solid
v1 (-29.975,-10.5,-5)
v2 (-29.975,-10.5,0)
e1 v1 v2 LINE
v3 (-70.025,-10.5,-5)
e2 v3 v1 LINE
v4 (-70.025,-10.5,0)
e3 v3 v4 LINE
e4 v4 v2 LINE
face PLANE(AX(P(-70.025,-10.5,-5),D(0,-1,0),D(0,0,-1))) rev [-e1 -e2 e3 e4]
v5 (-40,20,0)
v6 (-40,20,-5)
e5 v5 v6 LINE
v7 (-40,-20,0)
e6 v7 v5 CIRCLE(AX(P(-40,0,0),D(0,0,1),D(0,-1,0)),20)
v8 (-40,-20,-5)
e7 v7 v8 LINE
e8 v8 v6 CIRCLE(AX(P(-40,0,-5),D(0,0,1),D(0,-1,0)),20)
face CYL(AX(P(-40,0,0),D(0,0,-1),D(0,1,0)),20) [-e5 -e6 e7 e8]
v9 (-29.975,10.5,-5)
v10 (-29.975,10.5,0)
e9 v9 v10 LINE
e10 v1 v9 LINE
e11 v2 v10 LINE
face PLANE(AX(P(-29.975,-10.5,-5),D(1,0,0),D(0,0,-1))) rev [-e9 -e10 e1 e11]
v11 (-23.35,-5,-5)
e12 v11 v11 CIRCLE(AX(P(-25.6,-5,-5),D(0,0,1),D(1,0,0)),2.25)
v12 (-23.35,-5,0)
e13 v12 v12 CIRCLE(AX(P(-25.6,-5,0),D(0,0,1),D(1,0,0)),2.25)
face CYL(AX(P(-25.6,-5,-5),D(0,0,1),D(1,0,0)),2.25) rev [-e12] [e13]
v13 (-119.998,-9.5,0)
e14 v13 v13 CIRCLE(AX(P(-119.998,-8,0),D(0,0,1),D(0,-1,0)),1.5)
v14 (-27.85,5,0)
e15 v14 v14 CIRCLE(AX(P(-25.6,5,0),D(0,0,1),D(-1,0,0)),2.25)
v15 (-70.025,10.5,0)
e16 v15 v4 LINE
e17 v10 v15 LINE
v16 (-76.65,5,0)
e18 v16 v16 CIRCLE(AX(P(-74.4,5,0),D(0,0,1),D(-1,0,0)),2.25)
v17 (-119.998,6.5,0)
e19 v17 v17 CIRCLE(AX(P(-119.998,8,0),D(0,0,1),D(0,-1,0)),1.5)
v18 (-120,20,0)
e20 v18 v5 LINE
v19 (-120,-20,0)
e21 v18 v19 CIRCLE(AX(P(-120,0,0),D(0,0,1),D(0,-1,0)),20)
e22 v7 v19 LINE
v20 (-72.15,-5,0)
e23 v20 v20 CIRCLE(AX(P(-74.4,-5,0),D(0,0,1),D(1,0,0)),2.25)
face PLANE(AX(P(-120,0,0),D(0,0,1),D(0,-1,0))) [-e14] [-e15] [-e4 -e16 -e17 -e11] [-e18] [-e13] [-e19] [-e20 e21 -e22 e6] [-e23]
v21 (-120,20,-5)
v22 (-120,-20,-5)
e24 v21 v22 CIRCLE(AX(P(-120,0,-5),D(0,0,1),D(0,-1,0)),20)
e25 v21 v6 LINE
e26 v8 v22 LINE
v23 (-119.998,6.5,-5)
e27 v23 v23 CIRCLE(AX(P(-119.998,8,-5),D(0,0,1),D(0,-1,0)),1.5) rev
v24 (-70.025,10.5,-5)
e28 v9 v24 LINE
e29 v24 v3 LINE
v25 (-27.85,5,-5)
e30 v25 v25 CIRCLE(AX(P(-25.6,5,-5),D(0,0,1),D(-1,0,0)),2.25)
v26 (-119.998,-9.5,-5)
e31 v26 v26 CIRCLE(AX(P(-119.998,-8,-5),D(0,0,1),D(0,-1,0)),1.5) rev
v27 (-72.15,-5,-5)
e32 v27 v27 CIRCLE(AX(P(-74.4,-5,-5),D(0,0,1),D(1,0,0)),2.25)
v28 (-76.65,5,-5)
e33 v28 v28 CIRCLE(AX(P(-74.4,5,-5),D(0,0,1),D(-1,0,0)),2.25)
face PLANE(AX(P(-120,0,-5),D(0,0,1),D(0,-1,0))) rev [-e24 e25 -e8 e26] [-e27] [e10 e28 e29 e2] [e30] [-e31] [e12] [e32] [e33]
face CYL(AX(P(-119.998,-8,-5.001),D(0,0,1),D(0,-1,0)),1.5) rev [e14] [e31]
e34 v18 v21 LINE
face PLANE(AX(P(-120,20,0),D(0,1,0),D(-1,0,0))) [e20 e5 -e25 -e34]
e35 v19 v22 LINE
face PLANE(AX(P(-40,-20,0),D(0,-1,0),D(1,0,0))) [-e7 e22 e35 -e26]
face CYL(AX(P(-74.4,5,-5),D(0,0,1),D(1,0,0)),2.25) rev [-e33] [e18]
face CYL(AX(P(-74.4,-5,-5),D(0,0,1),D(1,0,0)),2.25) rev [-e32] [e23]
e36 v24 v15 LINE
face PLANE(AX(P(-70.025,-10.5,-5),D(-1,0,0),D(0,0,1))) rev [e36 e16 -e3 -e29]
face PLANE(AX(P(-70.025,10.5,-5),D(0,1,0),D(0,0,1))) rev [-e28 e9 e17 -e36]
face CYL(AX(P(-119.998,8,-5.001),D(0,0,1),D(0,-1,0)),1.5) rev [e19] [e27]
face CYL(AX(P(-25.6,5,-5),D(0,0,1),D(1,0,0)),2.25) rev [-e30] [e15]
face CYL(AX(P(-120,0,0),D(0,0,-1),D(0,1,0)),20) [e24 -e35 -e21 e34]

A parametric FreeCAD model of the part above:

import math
import FreeCAD as App
import Part
import Sketcher

doc = App.newDocument("Part")
body = doc.addObject("PartDesign::Body", "Body")

# Sketch on XZ plane
sketch1 = doc.addObject("Sketcher::SketchObject", "Sketch")
body.addObject(sketch1)
sketch1.AttachmentSupport = (doc.XZ_Plane, [""])
sketch1.MapMode = "FlatFace"
sketch1.addGeometry(Part.LineSegment(App.Vector(0, 20, 0), App.Vector(80, 20, 0)), False)
sketch1.addGeometry(Part.ArcOfCircle(Part.Circle(App.Vector(80, 0, 0), App.Vector(0, 0, 1), 20), math.radians(-90), math.radians(90)), False)
sketch1.addGeometry(Part.LineSegment(App.Vector(80, -20, 0), App.Vector(0, -20, 0)), False)
sketch1.addGeometry(Part.ArcOfCircle(Part.Circle(App.Vector(0, 0, 0), App.Vector(0, 0, 1), 20), math.radians(90), math.radians(270)), False)
sketch1.addConstraint(Sketcher.Constraint("Tangent", 0, 2, 1, 2))
sketch1.addConstraint(Sketcher.Constraint("Tangent", 1, 1, 2, 1))
sketch1.addConstraint(Sketcher.Constraint("Tangent", 2, 2, 3, 2))
sketch1.addConstraint(Sketcher.Constraint("Tangent", 3, 1, 0, 1))
sketch1.addConstraint(Sketcher.Constraint("Horizontal", 0))
sketch1.addConstraint(Sketcher.Constraint("Horizontal", 2))
sketch1.addConstraint(Sketcher.Constraint("Coincident", 3, 3, -1, 1))
sketch1.addConstraint(Sketcher.Constraint("Radius", 1, 20.0))
sketch1.addConstraint(Sketcher.Constraint("DistanceX", 0, 1, 0, 2, 80.0))
pad1 = doc.addObject("PartDesign::Pad", "Pad")
body.addObject(pad1)
pad1.Profile = sketch1
pad1.Length = 5
pad1.Reversed = True

# Sketch on XZ plane
sketch2 = doc.addObject("Sketcher::SketchObject", "Sketch001")
body.addObject(sketch2)
sketch2.AttachmentSupport = (doc.XZ_Plane, [""])
sketch2.MapMode = "FlatFace"
sketch2.AttachmentOffset = App.Placement(App.Vector(0, 0, -5), App.Rotation())
sketch2.addGeometry(Part.Circle(App.Vector(0, -8, 0), App.Vector(0, 0, 1), 1.5), False)
sketch2.addConstraint(Sketcher.Constraint("Diameter", 0, 3.0))
sketch2.addConstraint(Sketcher.Constraint("DistanceY", 0, 3, -1, 1, 8.0))
sketch2.addConstraint(Sketcher.Constraint("DistanceX", -1, 1, 0, 3, 0.002))
pocket1 = doc.addObject("PartDesign::Pocket", "Pocket")
body.addObject(pocket1)
pocket1.Profile = sketch2
pocket1.Type = "UpToFirst"
pocket1.Reversed = True

# Sketch on XZ plane
sketch3 = doc.addObject("Sketcher::SketchObject", "Sketch002")
body.addObject(sketch3)
sketch3.AttachmentSupport = (doc.XZ_Plane, [""])
sketch3.MapMode = "FlatFace"
sketch3.AttachmentOffset = App.Placement(App.Vector(0, 0, -5), App.Rotation())
sketch3.addGeometry(Part.Circle(App.Vector(0, 8, 0), App.Vector(0, 0, 1), 1.5), False)
sketch3.addConstraint(Sketcher.Constraint("Diameter", 0, 3.0))
sketch3.addConstraint(Sketcher.Constraint("DistanceY", -1, 1, 0, 3, 8.0))
sketch3.addConstraint(Sketcher.Constraint("DistanceX", -1, 1, 0, 3, 0.002))
pocket2 = doc.addObject("PartDesign::Pocket", "Pocket001")
body.addObject(pocket2)
pocket2.Profile = sketch3
pocket2.Type = "UpToFirst"
pocket2.Reversed = True
body2 = doc.addObject("PartDesign::Body", "Body001")
doc.recompute()

body.Placement = App.Placement(App.Vector(0, 0, 0), App.Rotation(App.Vector(1, 0, 0), 90))
boolean = doc.addObject("PartDesign::Boolean", "Boolean")
body2.addObject(boolean)
boolean.Type = "Fuse"
boolean.addObjects([body])

# Sketch on XY plane
sketch4 = doc.addObject("Sketcher::SketchObject", "Sketch003")
body2.addObject(sketch4)
sketch4.AttachmentSupport = (doc.getObject("XY_Plane001"), [""])
sketch4.MapMode = "FlatFace"
sketch4.AttachmentOffset = App.Placement(App.Vector(0, 0, 5), App.Rotation())
sketch4.addGeometry(Part.Circle(App.Vector(94.4, -5, 0), App.Vector(0, 0, 1), 2.2), False)
sketch4.addGeometry(Part.Circle(App.Vector(94.4, 5, 0), App.Vector(0, 0, 1), 2.2), False)
sketch4.addGeometry(Part.Circle(App.Vector(45.6, 5, 0), App.Vector(0, 0, 1), 2.2), False)
sketch4.addGeometry(Part.Circle(App.Vector(45.6, -5, 0), App.Vector(0, 0, 1), 2.2), False)
sketch4.addGeometry(Part.LineSegment(App.Vector(50, 10.5, 0), App.Vector(50, -10.5, 0)), False)
sketch4.addGeometry(Part.LineSegment(App.Vector(50, -10.5, 0), App.Vector(90, -10.5, 0)), False)
sketch4.addGeometry(Part.LineSegment(App.Vector(90, -10.5, 0), App.Vector(90, 10.5, 0)), False)
sketch4.addGeometry(Part.LineSegment(App.Vector(90, 10.5, 0), App.Vector(50, 10.5, 0)), False)
sketch4.addConstraint(Sketcher.Constraint("Coincident", 4, 2, 5, 1))
sketch4.addConstraint(Sketcher.Constraint("Coincident", 5, 2, 6, 1))
sketch4.addConstraint(Sketcher.Constraint("Coincident", 6, 2, 7, 1))
sketch4.addConstraint(Sketcher.Constraint("Coincident", 7, 2, 4, 1))
sketch4.addConstraint(Sketcher.Constraint("Vertical", 4))
sketch4.addConstraint(Sketcher.Constraint("Horizontal", 5))
sketch4.addConstraint(Sketcher.Constraint("Vertical", 6))
sketch4.addConstraint(Sketcher.Constraint("Horizontal", 7))
sketch4.addConstraint(Sketcher.Constraint("Equal", 0, 1))
sketch4.addConstraint(Sketcher.Constraint("Equal", 1, 2))
sketch4.addConstraint(Sketcher.Constraint("Equal", 2, 3))
sketch4.addConstraint(Sketcher.Constraint("Symmetric", 0, 3, 1, 3, -1))
sketch4.addConstraint(Sketcher.Constraint("Symmetric", 2, 3, 3, 3, -1))
sketch4.addConstraint(Sketcher.Constraint("Horizontal", 1, 3, 2, 3))
sketch4.addConstraint(Sketcher.Constraint("Diameter", 0, 4.5))
sketch4.addConstraint(Sketcher.Constraint("DistanceY", 4, 2, 4, 1, 21.0))
sketch4.addConstraint(Sketcher.Constraint("DistanceY", 0, 3, -1, 1, 5.0))
sketch4.addConstraint(Sketcher.Constraint("DistanceX", 5, 1, 5, 2, 40.05))
sketch4.addConstraint(Sketcher.Constraint("DistanceX", -1, 1, 0, 3, 94.4))
sketch4.addConstraint(Sketcher.Constraint("DistanceX", -1, 1, 2, 3, 45.6))
sketch4.addConstraint(Sketcher.Constraint("DistanceY", 4, 2, -1, 1, 10.5))
sketch4.addConstraint(Sketcher.Constraint("DistanceX", -1, 1, 4, 2, 49.975))
pocket3 = doc.addObject("PartDesign::Pocket", "Pocket002")
body2.addObject(pocket3)
pocket3.Profile = sketch4
pocket3.Type = "ThroughAll"
body3 = doc.addObject("PartDesign::Body", "Body002")
doc.recompute()

body2.Placement = App.Placement(App.Vector(-120, 0, 0), App.Rotation(App.Vector(0, 0, 1), 0))
boolean2 = doc.addObject("PartDesign::Boolean", "Boolean001")
body3.addObject(boolean2)
boolean2.Type = "Fuse"
boolean2.addObjects([body2])
body4 = doc.addObject("PartDesign::Body", "Body003")
doc.recompute()

body3.Placement = App.Placement(App.Vector(0, 0, -5), App.Rotation(App.Vector(0, 0, 1), 0))
boolean3 = doc.addObject("PartDesign::Boolean", "Boolean002")
body4.addObject(boolean3)
boolean3.Type = "Fuse"
boolean3.addObjects([body3])

doc.recompute()
